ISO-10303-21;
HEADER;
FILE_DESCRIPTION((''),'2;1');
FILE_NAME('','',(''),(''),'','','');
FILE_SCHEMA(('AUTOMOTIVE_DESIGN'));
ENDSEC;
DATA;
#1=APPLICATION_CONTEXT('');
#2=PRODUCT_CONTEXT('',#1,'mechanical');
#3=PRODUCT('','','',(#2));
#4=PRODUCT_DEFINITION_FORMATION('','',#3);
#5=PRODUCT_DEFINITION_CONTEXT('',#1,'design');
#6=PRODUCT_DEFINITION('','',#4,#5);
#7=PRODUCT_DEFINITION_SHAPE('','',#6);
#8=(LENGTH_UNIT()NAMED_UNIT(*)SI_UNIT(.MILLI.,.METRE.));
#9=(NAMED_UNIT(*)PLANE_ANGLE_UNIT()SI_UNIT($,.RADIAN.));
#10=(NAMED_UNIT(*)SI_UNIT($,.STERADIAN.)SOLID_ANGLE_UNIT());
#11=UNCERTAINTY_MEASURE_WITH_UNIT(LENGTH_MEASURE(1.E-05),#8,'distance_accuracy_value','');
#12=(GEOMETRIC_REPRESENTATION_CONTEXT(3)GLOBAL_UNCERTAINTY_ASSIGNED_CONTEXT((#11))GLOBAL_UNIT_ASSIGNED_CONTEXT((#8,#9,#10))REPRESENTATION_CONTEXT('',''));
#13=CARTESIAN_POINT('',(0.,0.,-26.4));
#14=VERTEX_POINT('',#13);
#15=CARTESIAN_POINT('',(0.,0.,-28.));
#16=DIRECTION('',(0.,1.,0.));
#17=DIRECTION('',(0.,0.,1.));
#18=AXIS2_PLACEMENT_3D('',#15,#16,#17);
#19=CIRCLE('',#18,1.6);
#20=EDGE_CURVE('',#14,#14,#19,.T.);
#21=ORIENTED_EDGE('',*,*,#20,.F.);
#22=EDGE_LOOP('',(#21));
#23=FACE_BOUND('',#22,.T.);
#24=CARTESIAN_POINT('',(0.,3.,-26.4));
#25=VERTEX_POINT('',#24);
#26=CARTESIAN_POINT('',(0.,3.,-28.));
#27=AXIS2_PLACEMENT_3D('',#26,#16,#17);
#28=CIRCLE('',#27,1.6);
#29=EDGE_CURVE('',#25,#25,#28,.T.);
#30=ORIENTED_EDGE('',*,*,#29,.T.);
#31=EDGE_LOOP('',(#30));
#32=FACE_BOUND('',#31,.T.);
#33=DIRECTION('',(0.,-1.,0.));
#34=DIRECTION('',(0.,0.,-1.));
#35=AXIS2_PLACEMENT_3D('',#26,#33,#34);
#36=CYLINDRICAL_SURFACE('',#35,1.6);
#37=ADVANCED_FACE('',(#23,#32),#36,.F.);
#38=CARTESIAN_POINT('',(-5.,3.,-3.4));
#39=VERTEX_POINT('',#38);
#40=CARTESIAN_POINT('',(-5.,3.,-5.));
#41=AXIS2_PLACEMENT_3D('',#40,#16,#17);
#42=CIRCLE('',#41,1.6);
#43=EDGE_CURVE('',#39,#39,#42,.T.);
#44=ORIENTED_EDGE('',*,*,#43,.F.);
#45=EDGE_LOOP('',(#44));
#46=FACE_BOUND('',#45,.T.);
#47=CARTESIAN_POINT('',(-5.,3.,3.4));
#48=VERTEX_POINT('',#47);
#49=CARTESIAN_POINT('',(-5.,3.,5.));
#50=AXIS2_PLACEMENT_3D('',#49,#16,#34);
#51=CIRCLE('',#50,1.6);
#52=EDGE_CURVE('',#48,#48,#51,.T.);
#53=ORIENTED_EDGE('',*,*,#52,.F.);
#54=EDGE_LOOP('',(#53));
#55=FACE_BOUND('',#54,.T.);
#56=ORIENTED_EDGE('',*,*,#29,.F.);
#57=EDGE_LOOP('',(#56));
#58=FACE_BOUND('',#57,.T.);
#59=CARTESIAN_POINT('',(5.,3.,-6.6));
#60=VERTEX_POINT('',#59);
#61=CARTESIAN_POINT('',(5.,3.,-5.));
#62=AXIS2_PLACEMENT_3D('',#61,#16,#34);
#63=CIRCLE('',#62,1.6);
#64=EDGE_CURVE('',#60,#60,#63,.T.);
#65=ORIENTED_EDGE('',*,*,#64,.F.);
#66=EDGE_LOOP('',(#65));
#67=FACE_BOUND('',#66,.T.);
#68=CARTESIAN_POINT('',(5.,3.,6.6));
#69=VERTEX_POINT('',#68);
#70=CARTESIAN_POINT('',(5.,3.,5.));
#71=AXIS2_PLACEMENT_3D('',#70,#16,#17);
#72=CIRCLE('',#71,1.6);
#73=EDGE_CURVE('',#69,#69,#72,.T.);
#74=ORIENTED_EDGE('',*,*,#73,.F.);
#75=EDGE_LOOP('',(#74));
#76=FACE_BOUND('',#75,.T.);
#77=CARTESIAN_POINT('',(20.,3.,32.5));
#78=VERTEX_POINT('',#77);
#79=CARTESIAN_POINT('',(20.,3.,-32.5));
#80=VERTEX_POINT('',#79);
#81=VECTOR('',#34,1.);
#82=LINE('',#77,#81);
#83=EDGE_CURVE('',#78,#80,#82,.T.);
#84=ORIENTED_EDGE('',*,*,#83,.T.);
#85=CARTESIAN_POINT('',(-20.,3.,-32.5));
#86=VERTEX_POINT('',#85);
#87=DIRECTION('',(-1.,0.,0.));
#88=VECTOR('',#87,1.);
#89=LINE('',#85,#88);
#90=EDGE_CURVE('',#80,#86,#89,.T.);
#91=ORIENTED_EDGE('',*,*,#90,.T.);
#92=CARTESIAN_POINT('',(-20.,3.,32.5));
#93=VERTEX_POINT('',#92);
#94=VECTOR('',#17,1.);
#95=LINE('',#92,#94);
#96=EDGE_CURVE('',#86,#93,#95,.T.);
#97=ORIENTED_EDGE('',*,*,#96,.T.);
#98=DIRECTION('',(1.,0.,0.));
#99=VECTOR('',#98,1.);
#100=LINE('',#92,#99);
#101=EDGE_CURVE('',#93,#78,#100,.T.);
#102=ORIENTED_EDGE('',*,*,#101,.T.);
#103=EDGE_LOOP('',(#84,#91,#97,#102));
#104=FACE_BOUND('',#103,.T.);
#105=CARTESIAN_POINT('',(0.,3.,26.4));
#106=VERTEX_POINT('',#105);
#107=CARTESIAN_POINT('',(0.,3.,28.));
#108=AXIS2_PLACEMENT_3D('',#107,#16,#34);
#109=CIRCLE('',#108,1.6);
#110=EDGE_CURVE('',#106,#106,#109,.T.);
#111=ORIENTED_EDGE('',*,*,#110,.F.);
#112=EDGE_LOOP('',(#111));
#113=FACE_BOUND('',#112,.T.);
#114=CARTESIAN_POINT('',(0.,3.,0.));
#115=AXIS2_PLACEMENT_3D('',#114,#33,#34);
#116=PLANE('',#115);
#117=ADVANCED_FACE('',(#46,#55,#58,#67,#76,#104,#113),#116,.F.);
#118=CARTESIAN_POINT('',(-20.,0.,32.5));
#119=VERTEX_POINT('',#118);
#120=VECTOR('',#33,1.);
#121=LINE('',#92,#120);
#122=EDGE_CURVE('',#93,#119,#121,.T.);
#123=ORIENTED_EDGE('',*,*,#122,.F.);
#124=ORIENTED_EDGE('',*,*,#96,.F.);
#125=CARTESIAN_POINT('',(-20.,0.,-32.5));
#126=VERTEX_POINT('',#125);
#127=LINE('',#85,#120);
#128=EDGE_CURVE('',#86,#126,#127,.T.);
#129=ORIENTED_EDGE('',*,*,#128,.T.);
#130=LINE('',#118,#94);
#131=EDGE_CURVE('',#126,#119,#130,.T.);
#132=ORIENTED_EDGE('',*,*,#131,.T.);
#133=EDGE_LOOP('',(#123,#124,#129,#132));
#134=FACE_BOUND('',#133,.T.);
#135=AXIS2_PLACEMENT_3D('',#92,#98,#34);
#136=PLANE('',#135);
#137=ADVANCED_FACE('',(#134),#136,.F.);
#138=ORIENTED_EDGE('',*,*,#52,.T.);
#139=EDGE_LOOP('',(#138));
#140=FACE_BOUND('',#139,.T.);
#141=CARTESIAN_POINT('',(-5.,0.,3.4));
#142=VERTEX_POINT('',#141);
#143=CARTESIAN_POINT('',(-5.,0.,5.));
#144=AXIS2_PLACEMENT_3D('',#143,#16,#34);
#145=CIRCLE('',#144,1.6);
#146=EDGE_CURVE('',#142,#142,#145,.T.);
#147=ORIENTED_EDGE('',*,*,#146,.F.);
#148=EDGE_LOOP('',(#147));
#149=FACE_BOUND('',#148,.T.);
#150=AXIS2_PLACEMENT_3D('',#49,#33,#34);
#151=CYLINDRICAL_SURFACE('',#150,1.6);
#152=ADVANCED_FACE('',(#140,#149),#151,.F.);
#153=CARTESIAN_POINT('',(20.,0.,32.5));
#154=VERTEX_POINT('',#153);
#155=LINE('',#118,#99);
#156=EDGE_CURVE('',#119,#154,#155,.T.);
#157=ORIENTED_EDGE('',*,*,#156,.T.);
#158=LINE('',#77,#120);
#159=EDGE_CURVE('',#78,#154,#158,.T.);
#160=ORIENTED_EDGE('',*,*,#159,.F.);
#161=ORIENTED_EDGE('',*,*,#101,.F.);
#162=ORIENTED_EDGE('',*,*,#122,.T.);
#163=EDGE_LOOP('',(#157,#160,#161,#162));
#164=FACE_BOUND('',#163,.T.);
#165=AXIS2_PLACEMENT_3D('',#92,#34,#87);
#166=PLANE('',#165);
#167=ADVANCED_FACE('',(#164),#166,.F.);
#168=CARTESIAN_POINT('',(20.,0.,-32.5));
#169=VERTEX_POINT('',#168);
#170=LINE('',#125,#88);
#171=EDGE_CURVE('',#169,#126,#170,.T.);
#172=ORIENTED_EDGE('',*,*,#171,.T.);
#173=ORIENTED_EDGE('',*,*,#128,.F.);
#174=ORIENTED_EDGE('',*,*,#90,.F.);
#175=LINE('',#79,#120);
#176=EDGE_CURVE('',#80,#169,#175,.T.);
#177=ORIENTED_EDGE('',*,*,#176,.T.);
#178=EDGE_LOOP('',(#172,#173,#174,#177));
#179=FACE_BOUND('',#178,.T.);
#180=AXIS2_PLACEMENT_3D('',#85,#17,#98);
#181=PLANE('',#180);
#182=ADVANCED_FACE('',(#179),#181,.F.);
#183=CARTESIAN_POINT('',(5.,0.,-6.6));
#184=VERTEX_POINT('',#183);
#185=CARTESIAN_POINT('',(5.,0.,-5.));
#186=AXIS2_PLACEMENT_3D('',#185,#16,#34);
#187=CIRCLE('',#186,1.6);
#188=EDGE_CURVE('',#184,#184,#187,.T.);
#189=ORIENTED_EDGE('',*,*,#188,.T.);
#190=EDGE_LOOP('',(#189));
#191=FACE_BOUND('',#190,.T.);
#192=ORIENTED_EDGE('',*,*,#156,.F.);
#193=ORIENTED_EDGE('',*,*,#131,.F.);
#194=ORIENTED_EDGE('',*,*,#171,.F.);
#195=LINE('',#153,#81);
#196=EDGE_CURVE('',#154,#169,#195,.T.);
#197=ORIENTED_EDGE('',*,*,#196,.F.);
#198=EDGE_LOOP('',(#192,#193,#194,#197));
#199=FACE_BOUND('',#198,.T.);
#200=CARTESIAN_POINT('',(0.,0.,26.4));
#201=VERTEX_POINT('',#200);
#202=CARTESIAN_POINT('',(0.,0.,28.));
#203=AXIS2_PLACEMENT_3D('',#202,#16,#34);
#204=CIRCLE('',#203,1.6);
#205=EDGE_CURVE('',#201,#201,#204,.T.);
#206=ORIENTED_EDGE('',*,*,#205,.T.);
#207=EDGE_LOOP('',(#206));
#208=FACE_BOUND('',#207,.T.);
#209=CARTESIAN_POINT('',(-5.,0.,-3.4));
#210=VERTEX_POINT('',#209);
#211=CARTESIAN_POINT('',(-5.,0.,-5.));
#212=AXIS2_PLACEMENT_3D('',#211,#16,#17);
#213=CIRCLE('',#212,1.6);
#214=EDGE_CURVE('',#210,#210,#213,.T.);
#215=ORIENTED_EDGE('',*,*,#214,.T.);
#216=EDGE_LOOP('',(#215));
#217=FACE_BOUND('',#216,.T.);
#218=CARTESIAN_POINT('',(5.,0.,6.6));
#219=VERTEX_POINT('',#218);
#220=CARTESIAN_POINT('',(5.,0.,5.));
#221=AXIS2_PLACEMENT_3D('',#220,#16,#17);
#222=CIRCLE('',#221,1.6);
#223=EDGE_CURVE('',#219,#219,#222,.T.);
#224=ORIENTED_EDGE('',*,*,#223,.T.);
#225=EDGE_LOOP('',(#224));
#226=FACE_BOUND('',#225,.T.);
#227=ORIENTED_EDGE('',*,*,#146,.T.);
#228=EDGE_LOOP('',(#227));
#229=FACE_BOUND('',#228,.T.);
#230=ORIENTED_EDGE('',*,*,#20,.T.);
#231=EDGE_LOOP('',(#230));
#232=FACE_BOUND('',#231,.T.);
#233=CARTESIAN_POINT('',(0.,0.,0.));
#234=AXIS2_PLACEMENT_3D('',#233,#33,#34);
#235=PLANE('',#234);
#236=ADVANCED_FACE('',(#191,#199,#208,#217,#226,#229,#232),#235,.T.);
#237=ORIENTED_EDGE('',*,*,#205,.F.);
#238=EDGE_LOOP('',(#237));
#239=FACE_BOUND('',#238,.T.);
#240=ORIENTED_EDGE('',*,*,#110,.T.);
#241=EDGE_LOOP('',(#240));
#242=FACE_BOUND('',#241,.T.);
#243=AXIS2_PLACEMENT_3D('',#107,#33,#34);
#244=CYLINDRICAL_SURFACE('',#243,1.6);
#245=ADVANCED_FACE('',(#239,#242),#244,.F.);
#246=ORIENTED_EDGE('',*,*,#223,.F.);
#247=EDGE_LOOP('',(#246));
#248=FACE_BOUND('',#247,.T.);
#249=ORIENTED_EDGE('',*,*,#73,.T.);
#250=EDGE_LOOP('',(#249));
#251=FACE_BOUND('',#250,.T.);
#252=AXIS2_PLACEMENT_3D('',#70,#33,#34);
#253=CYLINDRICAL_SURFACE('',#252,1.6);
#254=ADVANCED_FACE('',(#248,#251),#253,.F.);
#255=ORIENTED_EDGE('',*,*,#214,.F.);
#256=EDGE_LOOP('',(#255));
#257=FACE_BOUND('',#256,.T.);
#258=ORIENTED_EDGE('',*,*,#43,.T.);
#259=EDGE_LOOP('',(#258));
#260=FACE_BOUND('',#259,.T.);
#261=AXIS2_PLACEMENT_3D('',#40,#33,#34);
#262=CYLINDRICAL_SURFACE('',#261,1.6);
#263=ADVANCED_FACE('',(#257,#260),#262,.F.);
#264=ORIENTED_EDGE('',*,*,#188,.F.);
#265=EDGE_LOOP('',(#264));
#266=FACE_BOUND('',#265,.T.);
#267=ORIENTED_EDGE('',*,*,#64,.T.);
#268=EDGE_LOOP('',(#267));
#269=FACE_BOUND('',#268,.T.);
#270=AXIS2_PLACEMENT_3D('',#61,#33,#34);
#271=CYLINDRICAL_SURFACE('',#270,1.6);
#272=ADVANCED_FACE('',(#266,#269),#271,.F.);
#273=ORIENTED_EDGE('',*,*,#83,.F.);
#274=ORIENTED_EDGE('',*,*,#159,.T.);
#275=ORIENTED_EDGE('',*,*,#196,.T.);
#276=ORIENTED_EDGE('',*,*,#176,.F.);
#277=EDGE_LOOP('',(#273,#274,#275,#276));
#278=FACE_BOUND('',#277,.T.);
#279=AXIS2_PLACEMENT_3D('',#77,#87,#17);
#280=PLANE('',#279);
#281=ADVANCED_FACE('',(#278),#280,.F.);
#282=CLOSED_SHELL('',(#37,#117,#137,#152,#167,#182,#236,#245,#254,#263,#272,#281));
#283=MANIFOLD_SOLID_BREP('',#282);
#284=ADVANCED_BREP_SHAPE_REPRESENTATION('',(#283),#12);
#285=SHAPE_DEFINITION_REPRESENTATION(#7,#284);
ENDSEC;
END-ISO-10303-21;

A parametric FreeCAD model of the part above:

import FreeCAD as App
import Part
import Sketcher

doc = App.newDocument("Part")
params = doc.addObject("Spreadsheet::Sheet", "Params")
for row, (alias, value) in enumerate([
    ("sketch1_diameter", "3.2 mm"),
    ("sketch1_width", "40 mm"),
    ("sketch1_height", "65 mm"),
    ("pad1_length", "3 mm"),
], start=1):
    params.set(f"A{row}", alias)
    params.set(f"B{row}", "=" + value)
    params.setAlias(f"B{row}", alias)

body = doc.addObject("PartDesign::Body", "Body")

# Sketch on XZ plane
sketch1 = body.newObject("Sketcher::SketchObject", "Sketch")
sketch1.AttachmentSupport = (doc.getObject("XZ_Plane"), [""])
sketch1.MapMode = "FlatFace"
sketch1.addGeometry([
    Part.LineSegment(App.Vector(-20, -32.5, 0), App.Vector(-20, 32.5, 0)),  # 0
    Part.LineSegment(App.Vector(-20, 32.5, 0), App.Vector(20, 32.5, 0)),  # 1
    Part.LineSegment(App.Vector(20, 32.5, 0), App.Vector(20, -32.5, 0)),  # 2
    Part.LineSegment(App.Vector(20, -32.5, 0), App.Vector(-20, -32.5, 0)),  # 3
    Part.Circle(App.Vector(-5, 5, 0), App.Vector(0, 0, 1), 1.6),  # 4
    Part.Circle(App.Vector(0, 28, 0), App.Vector(0, 0, 1), 1.6),  # 5
    Part.Circle(App.Vector(5, 5, 0), App.Vector(0, 0, 1), 1.6),  # 6
    Part.Circle(App.Vector(-5, -5, 0), App.Vector(0, 0, 1), 1.6),  # 7
    Part.Circle(App.Vector(5, -5, 0), App.Vector(0, 0, 1), 1.6),  # 8
    Part.Circle(App.Vector(0, -28, 0), App.Vector(0, 0, 1), 1.6),  # 9
], False)
sketch1.addConstraint([
    Sketcher.Constraint("Coincident", 0, 2, 1, 1),
    Sketcher.Constraint("Coincident", 1, 2, 2, 1),
    Sketcher.Constraint("Coincident", 2, 2, 3, 1),
    Sketcher.Constraint("Coincident", 3, 2, 0, 1),
    Sketcher.Constraint("Vertical", 0),
    Sketcher.Constraint("Horizontal", 1),
    Sketcher.Constraint("Vertical", 2),
    Sketcher.Constraint("Horizontal", 3),
    Sketcher.Constraint("Equal", 4, 5),
    Sketcher.Constraint("Equal", 5, 6),
    Sketcher.Constraint("Equal", 6, 7),
    Sketcher.Constraint("Equal", 7, 8),
    Sketcher.Constraint("Equal", 8, 9),
    Sketcher.Constraint("Symmetric", 6, 3, 7, 3, -1, 1),
    Sketcher.Constraint("Symmetric", 4, 3, 8, 3, -1, 1),
    Sketcher.Constraint("Symmetric", 5, 3, 9, 3, -1, 1),
    Sketcher.Constraint("Symmetric", 0, 2, 2, 2, -1, 1),
    Sketcher.Constraint("Symmetric", 4, 3, 6, 3, -2),
    Sketcher.Constraint("PointOnObject", 5, 3, -2),
    Sketcher.Constraint("Diameter", 4, 3.2),
    Sketcher.Constraint("DistanceX", 1, 1, 1, 2, 40.0),
    Sketcher.Constraint("DistanceY", 0, 1, 0, 2, 65.0),
    Sketcher.Constraint("DistanceX", 4, 3, -1, 1, 5.0),
    Sketcher.Constraint("DistanceY", -1, 1, 4, 3, 5.0),
    Sketcher.Constraint("DistanceY", -1, 1, 5, 3, 28.0),
])
sketch1.setExpression("Constraints[19]", "Params.sketch1_diameter")
sketch1.setExpression("Constraints[20]", "Params.sketch1_width")
sketch1.setExpression("Constraints[21]", "Params.sketch1_height")
pad1 = body.newObject("PartDesign::Pad", "Pad")
pad1.Profile = sketch1
pad1.setExpression("Length", "Params.pad1_length")
pad1.Reversed = True

doc.recompute()
